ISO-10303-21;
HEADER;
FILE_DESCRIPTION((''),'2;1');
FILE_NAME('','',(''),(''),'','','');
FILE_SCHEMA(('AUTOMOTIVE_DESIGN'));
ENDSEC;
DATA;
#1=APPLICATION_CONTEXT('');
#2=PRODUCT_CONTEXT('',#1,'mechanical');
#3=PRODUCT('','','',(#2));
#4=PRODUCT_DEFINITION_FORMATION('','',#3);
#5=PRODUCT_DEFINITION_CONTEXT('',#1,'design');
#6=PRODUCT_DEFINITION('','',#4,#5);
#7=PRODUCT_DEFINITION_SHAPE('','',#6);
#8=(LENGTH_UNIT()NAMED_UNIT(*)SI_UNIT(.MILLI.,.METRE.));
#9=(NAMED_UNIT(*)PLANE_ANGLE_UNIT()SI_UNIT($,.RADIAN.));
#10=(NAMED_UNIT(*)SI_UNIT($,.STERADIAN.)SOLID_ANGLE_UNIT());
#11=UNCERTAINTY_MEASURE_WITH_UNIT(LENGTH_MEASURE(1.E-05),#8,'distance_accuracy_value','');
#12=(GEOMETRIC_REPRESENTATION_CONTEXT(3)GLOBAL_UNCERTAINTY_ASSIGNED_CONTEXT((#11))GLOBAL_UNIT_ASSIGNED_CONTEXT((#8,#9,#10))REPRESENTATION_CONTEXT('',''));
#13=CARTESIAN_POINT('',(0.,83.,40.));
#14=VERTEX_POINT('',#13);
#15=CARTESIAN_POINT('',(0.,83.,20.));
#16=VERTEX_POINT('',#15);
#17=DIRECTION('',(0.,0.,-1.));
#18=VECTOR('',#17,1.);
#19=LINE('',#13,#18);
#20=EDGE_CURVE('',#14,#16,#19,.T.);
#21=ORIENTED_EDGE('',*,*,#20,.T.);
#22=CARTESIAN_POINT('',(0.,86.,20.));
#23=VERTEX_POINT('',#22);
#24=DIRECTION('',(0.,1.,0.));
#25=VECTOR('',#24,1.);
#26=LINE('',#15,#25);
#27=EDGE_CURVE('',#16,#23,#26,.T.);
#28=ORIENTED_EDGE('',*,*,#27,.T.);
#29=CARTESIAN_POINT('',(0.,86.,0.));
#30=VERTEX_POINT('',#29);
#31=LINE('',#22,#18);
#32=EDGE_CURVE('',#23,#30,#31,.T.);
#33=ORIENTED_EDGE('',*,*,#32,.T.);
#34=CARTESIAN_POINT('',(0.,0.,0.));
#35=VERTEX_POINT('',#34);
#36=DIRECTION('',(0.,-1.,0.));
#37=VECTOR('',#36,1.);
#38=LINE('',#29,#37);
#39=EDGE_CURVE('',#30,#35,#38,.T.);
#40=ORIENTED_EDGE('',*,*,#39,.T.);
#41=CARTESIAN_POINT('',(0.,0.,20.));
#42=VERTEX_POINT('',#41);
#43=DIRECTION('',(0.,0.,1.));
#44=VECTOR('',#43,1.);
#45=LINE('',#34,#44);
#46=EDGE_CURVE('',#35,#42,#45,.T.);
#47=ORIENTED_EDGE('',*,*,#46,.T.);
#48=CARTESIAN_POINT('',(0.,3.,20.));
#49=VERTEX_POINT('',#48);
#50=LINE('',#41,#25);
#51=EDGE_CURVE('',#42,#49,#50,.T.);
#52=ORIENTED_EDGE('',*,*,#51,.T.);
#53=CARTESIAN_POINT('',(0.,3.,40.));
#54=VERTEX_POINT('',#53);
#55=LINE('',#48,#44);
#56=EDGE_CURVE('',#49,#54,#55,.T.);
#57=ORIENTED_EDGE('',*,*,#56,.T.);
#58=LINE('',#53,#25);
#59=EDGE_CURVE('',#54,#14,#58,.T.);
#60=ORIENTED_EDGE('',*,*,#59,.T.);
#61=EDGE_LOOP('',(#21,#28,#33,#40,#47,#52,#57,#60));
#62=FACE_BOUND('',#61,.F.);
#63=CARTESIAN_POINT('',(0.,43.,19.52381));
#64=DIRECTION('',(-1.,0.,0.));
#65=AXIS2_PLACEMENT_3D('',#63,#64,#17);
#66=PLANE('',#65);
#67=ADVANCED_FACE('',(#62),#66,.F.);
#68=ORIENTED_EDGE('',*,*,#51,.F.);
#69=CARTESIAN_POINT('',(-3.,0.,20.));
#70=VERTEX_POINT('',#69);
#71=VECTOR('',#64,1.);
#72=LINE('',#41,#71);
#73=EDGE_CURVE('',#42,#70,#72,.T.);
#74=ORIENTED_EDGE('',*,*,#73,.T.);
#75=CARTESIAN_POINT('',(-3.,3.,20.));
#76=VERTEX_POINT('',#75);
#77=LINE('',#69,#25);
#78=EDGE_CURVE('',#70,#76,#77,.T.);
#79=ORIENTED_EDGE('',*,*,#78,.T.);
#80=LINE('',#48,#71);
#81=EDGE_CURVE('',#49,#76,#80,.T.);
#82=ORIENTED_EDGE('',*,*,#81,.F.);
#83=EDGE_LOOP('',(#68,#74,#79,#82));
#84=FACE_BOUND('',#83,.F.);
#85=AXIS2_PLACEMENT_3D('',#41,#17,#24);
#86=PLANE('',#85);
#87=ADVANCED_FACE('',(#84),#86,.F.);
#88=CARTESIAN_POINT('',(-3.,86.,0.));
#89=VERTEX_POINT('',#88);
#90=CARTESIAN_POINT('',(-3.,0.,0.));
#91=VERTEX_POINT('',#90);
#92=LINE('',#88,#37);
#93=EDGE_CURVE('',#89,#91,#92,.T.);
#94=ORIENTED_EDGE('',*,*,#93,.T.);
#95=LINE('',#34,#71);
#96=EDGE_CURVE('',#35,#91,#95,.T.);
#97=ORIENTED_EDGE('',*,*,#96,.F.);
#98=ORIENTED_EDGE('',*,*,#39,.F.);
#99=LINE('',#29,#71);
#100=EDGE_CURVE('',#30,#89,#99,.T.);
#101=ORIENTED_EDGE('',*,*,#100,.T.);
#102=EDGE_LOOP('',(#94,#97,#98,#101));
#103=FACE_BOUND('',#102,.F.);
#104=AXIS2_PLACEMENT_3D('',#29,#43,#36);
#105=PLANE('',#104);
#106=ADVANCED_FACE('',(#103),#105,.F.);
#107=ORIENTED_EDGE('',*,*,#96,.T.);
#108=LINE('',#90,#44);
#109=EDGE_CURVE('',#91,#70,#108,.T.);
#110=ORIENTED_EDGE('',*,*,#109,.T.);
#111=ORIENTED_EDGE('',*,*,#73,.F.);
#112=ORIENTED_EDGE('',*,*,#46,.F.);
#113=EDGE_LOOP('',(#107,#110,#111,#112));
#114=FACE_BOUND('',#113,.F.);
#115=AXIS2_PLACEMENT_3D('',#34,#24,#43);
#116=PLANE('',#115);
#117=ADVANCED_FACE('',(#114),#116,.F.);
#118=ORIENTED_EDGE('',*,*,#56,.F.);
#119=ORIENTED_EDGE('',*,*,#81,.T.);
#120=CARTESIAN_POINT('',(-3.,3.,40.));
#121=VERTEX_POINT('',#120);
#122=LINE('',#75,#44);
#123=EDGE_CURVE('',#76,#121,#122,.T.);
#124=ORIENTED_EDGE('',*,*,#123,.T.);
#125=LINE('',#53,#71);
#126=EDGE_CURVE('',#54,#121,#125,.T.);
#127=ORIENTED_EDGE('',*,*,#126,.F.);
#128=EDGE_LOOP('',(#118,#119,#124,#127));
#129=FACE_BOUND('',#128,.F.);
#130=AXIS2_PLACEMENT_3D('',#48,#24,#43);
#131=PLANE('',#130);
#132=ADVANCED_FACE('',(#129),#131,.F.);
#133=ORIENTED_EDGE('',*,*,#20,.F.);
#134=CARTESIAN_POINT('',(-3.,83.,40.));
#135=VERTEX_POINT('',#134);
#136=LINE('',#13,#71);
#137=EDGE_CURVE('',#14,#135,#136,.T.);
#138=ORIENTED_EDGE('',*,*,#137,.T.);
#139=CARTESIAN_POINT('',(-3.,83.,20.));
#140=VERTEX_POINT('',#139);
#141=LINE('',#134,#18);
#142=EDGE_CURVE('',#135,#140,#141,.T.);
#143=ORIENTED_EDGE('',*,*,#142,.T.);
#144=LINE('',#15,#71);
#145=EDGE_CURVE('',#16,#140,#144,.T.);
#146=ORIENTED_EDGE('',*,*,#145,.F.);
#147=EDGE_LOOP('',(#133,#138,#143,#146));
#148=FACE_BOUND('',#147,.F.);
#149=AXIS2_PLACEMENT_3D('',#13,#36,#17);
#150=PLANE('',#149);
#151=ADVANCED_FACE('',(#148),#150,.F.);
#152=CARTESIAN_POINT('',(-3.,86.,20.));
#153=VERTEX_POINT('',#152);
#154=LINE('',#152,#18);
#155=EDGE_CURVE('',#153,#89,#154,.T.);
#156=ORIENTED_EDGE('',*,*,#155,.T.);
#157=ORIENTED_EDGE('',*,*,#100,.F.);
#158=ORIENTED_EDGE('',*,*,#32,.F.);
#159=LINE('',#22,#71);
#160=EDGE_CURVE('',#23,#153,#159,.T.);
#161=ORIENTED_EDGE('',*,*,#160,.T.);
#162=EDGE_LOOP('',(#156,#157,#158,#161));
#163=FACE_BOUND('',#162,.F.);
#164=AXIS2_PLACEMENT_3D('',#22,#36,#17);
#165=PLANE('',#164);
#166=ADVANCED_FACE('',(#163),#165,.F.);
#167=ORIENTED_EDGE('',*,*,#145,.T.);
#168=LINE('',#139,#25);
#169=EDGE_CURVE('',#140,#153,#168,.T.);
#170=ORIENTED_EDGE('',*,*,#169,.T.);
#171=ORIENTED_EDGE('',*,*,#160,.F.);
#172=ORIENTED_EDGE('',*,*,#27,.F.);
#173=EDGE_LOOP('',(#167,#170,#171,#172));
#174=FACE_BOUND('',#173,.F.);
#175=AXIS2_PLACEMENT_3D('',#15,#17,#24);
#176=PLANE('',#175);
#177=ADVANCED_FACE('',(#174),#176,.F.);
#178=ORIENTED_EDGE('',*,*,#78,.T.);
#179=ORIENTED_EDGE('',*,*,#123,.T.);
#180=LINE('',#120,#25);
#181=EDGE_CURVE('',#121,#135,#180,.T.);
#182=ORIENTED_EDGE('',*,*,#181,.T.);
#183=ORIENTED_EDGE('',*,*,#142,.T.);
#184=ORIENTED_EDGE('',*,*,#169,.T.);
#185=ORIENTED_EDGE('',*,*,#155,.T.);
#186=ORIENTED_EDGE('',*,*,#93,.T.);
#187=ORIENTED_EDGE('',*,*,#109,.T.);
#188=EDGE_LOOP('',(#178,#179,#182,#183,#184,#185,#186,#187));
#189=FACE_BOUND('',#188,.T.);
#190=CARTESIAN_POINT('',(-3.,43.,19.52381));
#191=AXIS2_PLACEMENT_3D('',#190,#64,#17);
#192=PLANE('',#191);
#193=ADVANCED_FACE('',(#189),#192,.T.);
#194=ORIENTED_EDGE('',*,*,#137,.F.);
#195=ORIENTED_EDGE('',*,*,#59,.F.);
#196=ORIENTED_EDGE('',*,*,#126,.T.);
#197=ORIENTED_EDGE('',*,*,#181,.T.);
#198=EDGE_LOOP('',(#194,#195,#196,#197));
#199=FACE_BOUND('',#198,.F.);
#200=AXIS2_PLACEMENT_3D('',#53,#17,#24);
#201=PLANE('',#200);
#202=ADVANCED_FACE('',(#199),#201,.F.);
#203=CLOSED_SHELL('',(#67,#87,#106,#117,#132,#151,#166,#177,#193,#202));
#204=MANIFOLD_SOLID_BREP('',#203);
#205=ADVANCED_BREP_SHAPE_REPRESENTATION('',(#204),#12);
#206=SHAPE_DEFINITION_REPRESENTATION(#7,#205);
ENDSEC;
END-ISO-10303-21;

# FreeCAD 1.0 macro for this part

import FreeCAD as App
import Part
import Sketcher
from FreeCAD import Vector

doc = App.newDocument("Part")
body = doc.addObject("PartDesign::Body", "Body")

sketch1 = doc.addObject("Sketcher::SketchObject", "Sketch")
body.addObject(sketch1)
sketch1.AttachmentSupport = (doc.YZ_Plane, [""])
sketch1.MapMode = "FlatFace"
sketch1.addGeometry([
    Part.LineSegment(Vector(83, 40, 0), Vector(3, 40, 0)),
    Part.LineSegment(Vector(3, 40, 0), Vector(3, 20, 0)),
    Part.LineSegment(Vector(3, 20, 0), Vector(0, 20, 0)),
    Part.LineSegment(Vector(0, 20, 0), Vector(0, 0, 0)),
    Part.LineSegment(Vector(0, 0, 0), Vector(86, 0, 0)),
    Part.LineSegment(Vector(86, 0, 0), Vector(86, 20, 0)),
    Part.LineSegment(Vector(86, 20, 0), Vector(83, 20, 0)),
    Part.LineSegment(Vector(83, 20, 0), Vector(83, 40, 0)),
], False)
sketch1.addConstraint([
    Sketcher.Constraint("Coincident", 0, 2, 1, 1),
    Sketcher.Constraint("Coincident", 1, 2, 2, 1),
    Sketcher.Constraint("Coincident", 2, 2, 3, 1),
    Sketcher.Constraint("Coincident", 3, 2, 4, 1),
    Sketcher.Constraint("Coincident", 4, 2, 5, 1),
    Sketcher.Constraint("Coincident", 5, 2, 6, 1),
    Sketcher.Constraint("Coincident", 6, 2, 7, 1),
    Sketcher.Constraint("Coincident", 7, 2, 0, 1),
    Sketcher.Constraint("Horizontal", 0),
    Sketcher.Constraint("Vertical", 1),
    Sketcher.Constraint("Horizontal", 2),
    Sketcher.Constraint("Vertical", 3),
    Sketcher.Constraint("Horizontal", 4),
    Sketcher.Constraint("Vertical", 5),
    Sketcher.Constraint("Horizontal", 6),
    Sketcher.Constraint("Vertical", 7),
    Sketcher.Constraint("Coincident", 3, 2, -1, 1),
    Sketcher.Constraint("Horizontal", 2, 2, 5, 2),
    Sketcher.Constraint("Equal", 2, 6),
    Sketcher.Constraint("Equal", 1, 3),
    Sketcher.Constraint("DistanceX", 2, 2, 2, 1, 3.0),
    Sketcher.Constraint("DistanceX", 4, 1, 4, 2, 86.0),
    Sketcher.Constraint("DistanceY", 1, 2, 1, 1, 20.0),
])
pad1 = doc.addObject("PartDesign::Pad", "Pad")
body.addObject(pad1)
pad1.Profile = sketch1
pad1.Length = 3
pad1.Reversed = True

doc.recompute()
